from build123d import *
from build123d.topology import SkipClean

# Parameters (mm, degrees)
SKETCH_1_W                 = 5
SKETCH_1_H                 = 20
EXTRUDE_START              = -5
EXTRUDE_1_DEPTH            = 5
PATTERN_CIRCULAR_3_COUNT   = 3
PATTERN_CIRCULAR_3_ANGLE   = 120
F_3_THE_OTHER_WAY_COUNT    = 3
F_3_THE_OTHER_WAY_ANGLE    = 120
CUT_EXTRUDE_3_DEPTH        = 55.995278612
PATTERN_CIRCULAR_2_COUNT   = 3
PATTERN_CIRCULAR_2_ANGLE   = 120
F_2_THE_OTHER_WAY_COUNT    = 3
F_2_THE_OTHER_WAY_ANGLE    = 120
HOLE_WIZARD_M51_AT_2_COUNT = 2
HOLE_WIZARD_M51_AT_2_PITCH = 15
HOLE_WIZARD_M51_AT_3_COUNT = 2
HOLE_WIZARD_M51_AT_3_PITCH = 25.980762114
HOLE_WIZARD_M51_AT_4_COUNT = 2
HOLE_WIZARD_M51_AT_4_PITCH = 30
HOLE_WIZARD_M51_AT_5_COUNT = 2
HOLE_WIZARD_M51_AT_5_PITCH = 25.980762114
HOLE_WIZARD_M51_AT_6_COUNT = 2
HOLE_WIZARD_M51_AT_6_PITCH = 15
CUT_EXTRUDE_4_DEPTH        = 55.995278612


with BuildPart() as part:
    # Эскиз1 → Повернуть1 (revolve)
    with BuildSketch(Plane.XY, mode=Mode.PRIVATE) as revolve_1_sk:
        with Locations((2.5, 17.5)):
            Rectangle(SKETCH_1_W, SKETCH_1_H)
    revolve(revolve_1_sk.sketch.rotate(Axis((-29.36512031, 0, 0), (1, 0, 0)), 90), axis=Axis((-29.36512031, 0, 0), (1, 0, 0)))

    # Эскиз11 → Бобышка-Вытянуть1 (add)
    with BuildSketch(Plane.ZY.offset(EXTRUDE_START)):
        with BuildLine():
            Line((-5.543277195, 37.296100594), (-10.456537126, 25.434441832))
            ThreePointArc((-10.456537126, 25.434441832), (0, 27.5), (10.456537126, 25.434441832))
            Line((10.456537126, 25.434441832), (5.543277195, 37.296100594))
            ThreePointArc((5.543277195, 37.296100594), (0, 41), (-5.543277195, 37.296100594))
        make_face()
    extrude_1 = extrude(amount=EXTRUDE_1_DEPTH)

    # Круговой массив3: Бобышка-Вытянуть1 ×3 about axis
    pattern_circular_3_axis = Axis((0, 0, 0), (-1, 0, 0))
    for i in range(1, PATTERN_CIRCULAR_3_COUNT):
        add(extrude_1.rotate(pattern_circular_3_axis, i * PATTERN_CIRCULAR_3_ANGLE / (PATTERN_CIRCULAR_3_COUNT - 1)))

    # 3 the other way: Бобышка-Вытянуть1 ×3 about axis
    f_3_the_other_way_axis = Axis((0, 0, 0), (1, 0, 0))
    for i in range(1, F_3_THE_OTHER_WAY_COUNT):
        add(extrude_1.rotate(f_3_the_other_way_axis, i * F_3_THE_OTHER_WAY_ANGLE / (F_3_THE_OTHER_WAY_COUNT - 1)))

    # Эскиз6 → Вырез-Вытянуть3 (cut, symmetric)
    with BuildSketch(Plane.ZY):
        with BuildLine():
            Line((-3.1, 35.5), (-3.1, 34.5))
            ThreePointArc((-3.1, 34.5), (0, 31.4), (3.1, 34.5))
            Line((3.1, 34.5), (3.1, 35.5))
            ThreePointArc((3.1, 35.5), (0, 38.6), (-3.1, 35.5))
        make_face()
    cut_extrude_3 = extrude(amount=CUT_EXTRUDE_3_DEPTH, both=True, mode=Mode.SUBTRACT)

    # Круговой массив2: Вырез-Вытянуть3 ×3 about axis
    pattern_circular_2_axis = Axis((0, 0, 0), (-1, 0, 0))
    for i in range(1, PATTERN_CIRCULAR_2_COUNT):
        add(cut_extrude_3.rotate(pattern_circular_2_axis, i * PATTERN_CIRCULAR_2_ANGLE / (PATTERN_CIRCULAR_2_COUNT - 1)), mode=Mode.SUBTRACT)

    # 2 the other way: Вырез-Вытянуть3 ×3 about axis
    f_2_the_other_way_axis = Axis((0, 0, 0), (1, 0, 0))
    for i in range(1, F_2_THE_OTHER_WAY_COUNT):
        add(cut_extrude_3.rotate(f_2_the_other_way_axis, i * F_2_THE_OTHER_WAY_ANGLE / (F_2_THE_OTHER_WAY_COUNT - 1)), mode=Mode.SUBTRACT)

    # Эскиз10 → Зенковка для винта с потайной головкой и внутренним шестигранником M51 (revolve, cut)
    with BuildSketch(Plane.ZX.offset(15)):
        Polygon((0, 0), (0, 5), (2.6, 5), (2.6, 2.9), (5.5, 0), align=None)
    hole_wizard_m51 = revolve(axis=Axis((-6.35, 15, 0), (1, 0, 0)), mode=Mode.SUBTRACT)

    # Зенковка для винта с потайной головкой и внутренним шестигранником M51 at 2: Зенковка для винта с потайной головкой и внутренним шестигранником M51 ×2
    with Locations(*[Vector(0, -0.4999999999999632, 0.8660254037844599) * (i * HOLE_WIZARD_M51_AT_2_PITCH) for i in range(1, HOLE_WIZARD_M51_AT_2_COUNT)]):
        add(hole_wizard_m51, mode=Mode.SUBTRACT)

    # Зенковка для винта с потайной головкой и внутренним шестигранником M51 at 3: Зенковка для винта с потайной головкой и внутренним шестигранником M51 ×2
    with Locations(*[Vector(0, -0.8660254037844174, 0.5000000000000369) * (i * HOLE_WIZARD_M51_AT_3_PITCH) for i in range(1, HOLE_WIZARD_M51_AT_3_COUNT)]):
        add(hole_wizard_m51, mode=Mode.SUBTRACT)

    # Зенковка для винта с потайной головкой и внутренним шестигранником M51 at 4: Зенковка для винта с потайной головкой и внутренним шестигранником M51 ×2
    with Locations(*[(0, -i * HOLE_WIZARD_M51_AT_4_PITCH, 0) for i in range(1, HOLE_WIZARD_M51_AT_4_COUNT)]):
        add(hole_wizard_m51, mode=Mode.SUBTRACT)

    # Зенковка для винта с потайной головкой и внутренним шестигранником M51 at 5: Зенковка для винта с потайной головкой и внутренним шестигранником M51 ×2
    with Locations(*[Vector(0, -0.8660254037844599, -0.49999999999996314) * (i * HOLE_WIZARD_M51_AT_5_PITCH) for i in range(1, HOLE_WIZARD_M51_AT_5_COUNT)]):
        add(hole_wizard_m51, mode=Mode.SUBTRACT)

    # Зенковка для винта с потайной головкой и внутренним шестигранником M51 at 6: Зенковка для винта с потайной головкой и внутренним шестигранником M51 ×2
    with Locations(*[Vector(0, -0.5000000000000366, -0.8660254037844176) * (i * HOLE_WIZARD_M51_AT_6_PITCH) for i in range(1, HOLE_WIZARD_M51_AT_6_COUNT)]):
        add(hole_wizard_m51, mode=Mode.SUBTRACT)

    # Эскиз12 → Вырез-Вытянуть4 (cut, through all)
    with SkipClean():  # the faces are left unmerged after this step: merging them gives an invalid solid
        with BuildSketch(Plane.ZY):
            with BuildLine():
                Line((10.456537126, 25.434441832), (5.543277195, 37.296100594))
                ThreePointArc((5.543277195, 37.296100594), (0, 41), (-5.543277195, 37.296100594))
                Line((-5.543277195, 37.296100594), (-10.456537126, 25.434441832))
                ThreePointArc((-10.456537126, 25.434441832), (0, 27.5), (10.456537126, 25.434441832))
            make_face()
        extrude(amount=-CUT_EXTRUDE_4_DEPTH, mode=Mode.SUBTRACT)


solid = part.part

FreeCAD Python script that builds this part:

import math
import FreeCAD as App
import Part
import Sketcher

V = App.Vector
Q = App.Units.Quantity

doc = App.newDocument("Part")
params = doc.addObject("Spreadsheet::Sheet", "Params")
for row, (alias, value) in enumerate([
    ("sketch1_width", "5 mm"),
    ("sketch1_height", "20 mm"),
    ("revolution_angle", "360 deg"),
    ("sketch2_radius", "6 mm"),
    ("sketch2_radius2", "27.5 mm"),
    ("pad1_length", "5 mm"),
    ("sketch3_radius", "3.1 mm"),
    ("sketch3_width", "1 mm"),
    ("pocket1_length", "111.990557 mm"),
    ("sketch4_width", "5 mm"),
    ("sketch4_width2", "2.1 mm"),
    ("sketch4_height", "5.5 mm"),
    ("groove_angle", "360 deg"),
    ("linearpattern_pitch", "15 mm"),
    ("linearpattern2_pitch", "25.980762 mm"),
    ("linearpattern3_pitch", "30 mm"),
    ("linearpattern4_pitch", "25.980762 mm"),
    ("linearpattern5_pitch", "15 mm"),
    ("sketch5_radius", "6 mm"),
    ("sketch5_radius2", "27.5 mm"),
], start=1):
    params.set(f"A{row}", alias)
    params.set(f"B{row}", "=" + value)
    params.setAlias(f"B{row}", alias)

body = doc.addObject("PartDesign::Body", "Body")

sketch1 = body.newObject("Sketcher::SketchObject", "Sketch")
sketch1.AttachmentSupport = (doc.getObject("XY_Plane"), [""])
sketch1.MapMode = "FlatFace"
sketch1.addGeometry([
    Part.LineSegment(V(0, 27.5, 0), V(0, 7.5, 0)),
    Part.LineSegment(V(0, 7.5, 0), V(5, 7.5, 0)),
    Part.LineSegment(V(5, 7.5, 0), V(5, 27.5, 0)),
    Part.LineSegment(V(5, 27.5, 0), V(0, 27.5, 0)),
], False)
sketch1.addConstraint([
    Sketcher.Constraint("Coincident", 0, 2, 1, 1),
    Sketcher.Constraint("Coincident", 1, 2, 2, 1),
    Sketcher.Constraint("Coincident", 2, 2, 3, 1),
    Sketcher.Constraint("Coincident", 3, 2, 0, 1),
    Sketcher.Constraint("Vertical", 0),
    Sketcher.Constraint("Horizontal", 1),
    Sketcher.Constraint("Vertical", 2),
    Sketcher.Constraint("Horizontal", 3),
    Sketcher.Constraint("PointOnObject", 0, 2, -2),
    Sketcher.Constraint("DistanceX", 1, 1, 1, 2, 5.0),
    Sketcher.Constraint("DistanceY", 0, 2, 0, 1, 20.0),
    Sketcher.Constraint("DistanceY", -1, 1, 0, 2, 7.5),
])
sketch1.setExpression("Constraints[9]", "Params.sketch1_width")
sketch1.setExpression("Constraints[10]", "Params.sketch1_height")
revolution = body.newObject("PartDesign::Revolution", "Revolution")
revolution.Profile = sketch1
revolution.ReferenceAxis = (sketch1, ["H_Axis"])
revolution.setExpression("Angle", "Params.revolution_angle")

sketch2 = body.newObject("Sketcher::SketchObject", "Sketch001")
sketch2.AttachmentSupport = (doc.getObject("YZ_Plane"), [""])
sketch2.MapMode = "FlatFace"
sketch2.AttachmentOffset = App.Placement(V(0, 0, 5), App.Rotation())
sketch2.addGeometry([
    Part.LineSegment(V(37.296101, -5.543277, 0), V(25.434442, -10.456537, 0)),
    Part.ArcOfCircle(Part.Circle(V(0, 0, 0), V(0, 0, 1), 27.5), math.radians(-22.348408), math.radians(22.348408)),
    Part.LineSegment(V(25.434442, 10.456537, 0), V(37.296101, 5.543277, 0)),
    Part.ArcOfCircle(Part.Circle(V(35, 0, 0), V(0, 0, 1), 6), math.radians(-67.5), math.radians(67.5)),
], False)
sketch2.addConstraint([
    Sketcher.Constraint("Coincident", 0, 2, 1, 1),
    Sketcher.Constraint("Coincident", 1, 2, 2, 1),
    Sketcher.Constraint("Tangent", 2, 2, 3, 2),
    Sketcher.Constraint("Tangent", 3, 1, 0, 1),
    Sketcher.Constraint("Coincident", 1, 3, -1, 1),
    Sketcher.Constraint("Symmetric", 2, 2, 3, 1, -1),
    Sketcher.Constraint("Radius", 3, 6.0),
    Sketcher.Constraint("Radius", 1, 27.5),
    Sketcher.Constraint("DistanceX", -1, 1, 3, 3, 35.0),
    Sketcher.Constraint("Angle", 0, Q("-157.5 deg")),
])
sketch2.setExpression("Constraints[6]", "Params.sketch2_radius")
sketch2.setExpression("Constraints[7]", "Params.sketch2_radius2")
pad1 = body.newObject("PartDesign::Pad", "Pad")
pad1.Profile = sketch2
pad1.setExpression("Length", "Params.pad1_length")
pad1.Reversed = True
doc.recompute()

polarpattern = body.newObject("PartDesign::PolarPattern", "PolarPattern")
polarpattern.Originals = [pad1]
polarpattern.Axis = (doc.getObject("X_Axis"), [""])
polarpattern.Angle = 120
polarpattern.Occurrences = 3
polarpattern.Reversed = True
body.Tip = polarpattern
doc.recompute()

polarpattern2 = body.newObject("PartDesign::PolarPattern", "PolarPattern001")
polarpattern2.Originals = [pad1]
polarpattern2.Axis = (doc.getObject("X_Axis"), [""])
polarpattern2.Angle = 120
polarpattern2.Occurrences = 3
body.Tip = polarpattern2

sketch3 = body.newObject("Sketcher::SketchObject", "Sketch002")
sketch3.AttachmentSupport = (doc.getObject("YZ_Plane"), [""])
sketch3.MapMode = "FlatFace"
sketch3.addGeometry([
    Part.LineSegment(V(35.5, -3.1, 0), V(34.5, -3.1, 0)),
    Part.ArcOfCircle(Part.Circle(V(34.5, 0, 0), V(0, 0, 1), 3.1), math.radians(90), math.radians(270)),
    Part.LineSegment(V(34.5, 3.1, 0), V(35.5, 3.1, 0)),
    Part.ArcOfCircle(Part.Circle(V(35.5, 0, 0), V(0, 0, 1), 3.1), math.radians(-90), math.radians(90)),
], False)
sketch3.addConstraint([
    Sketcher.Constraint("Tangent", 0, 2, 1, 2),
    Sketcher.Constraint("Tangent", 1, 1, 2, 1),
    Sketcher.Constraint("Tangent", 2, 2, 3, 2),
    Sketcher.Constraint("Tangent", 3, 1, 0, 1),
    Sketcher.Constraint("Horizontal", 0),
    Sketcher.Constraint("Horizontal", 2),
    Sketcher.Constraint("PointOnObject", 1, 3, -1),
    Sketcher.Constraint("Radius", 1, 3.1),
    Sketcher.Constraint("DistanceX", 0, 2, 0, 1, 1.0),
    Sketcher.Constraint("DistanceX", -1, 1, 1, 3, 34.5),
])
sketch3.setExpression("Constraints[7]", "Params.sketch3_radius")
sketch3.setExpression("Constraints[8]", "Params.sketch3_width")
pocket1 = body.newObject("PartDesign::Pocket", "Pocket")
pocket1.Profile = sketch3
pocket1.setExpression("Length", "Params.pocket1_length")
pocket1.Midplane = True
doc.recompute()

polarpattern3 = body.newObject("PartDesign::PolarPattern", "PolarPattern002")
polarpattern3.Originals = [pocket1]
polarpattern3.Axis = (doc.getObject("X_Axis"), [""])
polarpattern3.Angle = 120
polarpattern3.Occurrences = 3
polarpattern3.Reversed = True
body.Tip = polarpattern3
doc.recompute()

polarpattern4 = body.newObject("PartDesign::PolarPattern", "PolarPattern003")
polarpattern4.Originals = [pocket1]
polarpattern4.Axis = (doc.getObject("X_Axis"), [""])
polarpattern4.Angle = 120
polarpattern4.Occurrences = 3
body.Tip = polarpattern4

sketch4 = body.newObject("Sketcher::SketchObject", "Sketch003")
sketch4.AttachmentSupport = (doc.getObject("XZ_Plane"), [""])
sketch4.MapMode = "FlatFace"
sketch4.AttachmentOffset = App.Placement(V(0, 0, -15), App.Rotation())
sketch4.addGeometry([
    Part.LineSegment(V(5, 0, 0), V(0, 0, 0)),
    Part.LineSegment(V(0, 0, 0), V(0, 5.5, 0)),
    Part.LineSegment(V(0, 5.5, 0), V(2.9, 2.6, 0)),
    Part.LineSegment(V(2.9, 2.6, 0), V(5, 2.6, 0)),
    Part.LineSegment(V(5, 2.6, 0), V(5, 0, 0)),
], False)
sketch4.addConstraint([
    Sketcher.Constraint("Coincident", 0, 2, 1, 1),
    Sketcher.Constraint("Coincident", 1, 2, 2, 1),
    Sketcher.Constraint("Coincident", 2, 2, 3, 1),
    Sketcher.Constraint("Coincident", 3, 2, 4, 1),
    Sketcher.Constraint("Coincident", 4, 2, 0, 1),
    Sketcher.Constraint("Horizontal", 0),
    Sketcher.Constraint("Vertical", 1),
    Sketcher.Constraint("Horizontal", 3),
    Sketcher.Constraint("Vertical", 4),
    Sketcher.Constraint("Coincident", 0, 2, -1, 1),
    Sketcher.Constraint("DistanceX", 0, 2, 0, 1, 5.0),
    Sketcher.Constraint("Angle", 2, Q("-45 deg")),
    Sketcher.Constraint("DistanceX", 3, 1, 3, 2, 2.1),
    Sketcher.Constraint("DistanceY", 1, 1, 1, 2, 5.5),
])
sketch4.setExpression("Constraints[10]", "Params.sketch4_width")
sketch4.setExpression("Constraints[12]", "Params.sketch4_width2")
sketch4.setExpression("Constraints[13]", "Params.sketch4_height")
groove = body.newObject("PartDesign::Groove", "Groove")
groove.Profile = sketch4
groove.ReferenceAxis = (sketch4, ["H_Axis"])
groove.setExpression("Angle", "Params.groove_angle")
doc.recompute()

datumline = body.newObject("PartDesign::Line", "DatumLine")
datumline.Placement = App.Placement(V(0, 0, 0), App.Rotation(V(0, 0, 1), V(0, -0.5, 0.866025404)))
linearpattern = body.newObject("PartDesign::LinearPattern", "LinearPattern")
linearpattern.Originals = [groove]
linearpattern.Direction = (datumline, [""])
linearpattern.Mode = "offset"
linearpattern.setExpression("Offset", "Params.linearpattern_pitch")
linearpattern.Occurrences = 2
body.Tip = linearpattern
doc.recompute()

datumline2 = body.newObject("PartDesign::Line", "DatumLine001")
datumline2.Placement = App.Placement(V(0, 0, 0), App.Rotation(V(0, 0, 1), V(0, -0.866025404, 0.5)))
linearpattern2 = body.newObject("PartDesign::LinearPattern", "LinearPattern001")
linearpattern2.Originals = [groove]
linearpattern2.Direction = (datumline2, [""])
linearpattern2.Mode = "offset"
linearpattern2.setExpression("Offset", "Params.linearpattern2_pitch")
linearpattern2.Occurrences = 2
body.Tip = linearpattern2
doc.recompute()

linearpattern3 = body.newObject("PartDesign::LinearPattern", "LinearPattern002")
linearpattern3.Originals = [groove]
linearpattern3.Direction = (doc.getObject("Y_Axis"), [""])
linearpattern3.Mode = "offset"
linearpattern3.setExpression("Offset", "Params.linearpattern3_pitch")
linearpattern3.Occurrences = 2
linearpattern3.Reversed = True
body.Tip = linearpattern3
doc.recompute()

datumline3 = body.newObject("PartDesign::Line", "DatumLine002")
datumline3.Placement = App.Placement(V(0, 0, 0), App.Rotation(V(0, 0, 1), V(0, -0.866025404, -0.5)))
linearpattern4 = body.newObject("PartDesign::LinearPattern", "LinearPattern003")
linearpattern4.Originals = [groove]
linearpattern4.Direction = (datumline3, [""])
linearpattern4.Mode = "offset"
linearpattern4.setExpression("Offset", "Params.linearpattern4_pitch")
linearpattern4.Occurrences = 2
body.Tip = linearpattern4
doc.recompute()

datumline4 = body.newObject("PartDesign::Line", "DatumLine003")
datumline4.Placement = App.Placement(V(0, 0, 0), App.Rotation(V(0, 0, 1), V(0, -0.5, -0.866025404)))
linearpattern5 = body.newObject("PartDesign::LinearPattern", "LinearPattern004")
linearpattern5.Originals = [groove]
linearpattern5.Direction = (datumline4, [""])
linearpattern5.Mode = "offset"
linearpattern5.setExpression("Offset", "Params.linearpattern5_pitch")
linearpattern5.Occurrences = 2
body.Tip = linearpattern5

sketch5 = body.newObject("Sketcher::SketchObject", "Sketch004")
sketch5.AttachmentSupport = (doc.getObject("YZ_Plane"), [""])
sketch5.MapMode = "FlatFace"
sketch5.addGeometry([
    Part.LineSegment(V(25.434442, 10.456537, 0), V(37.296101, 5.543277, 0)),
    Part.ArcOfCircle(Part.Circle(V(35, 0, 0), V(0, 0, 1), 6), math.radians(-67.5), math.radians(67.5)),
    Part.LineSegment(V(37.296101, -5.543277, 0), V(25.434442, -10.456537, 0)),
    Part.ArcOfCircle(Part.Circle(V(0, 0, 0), V(0, 0, 1), 27.5), math.radians(-22.348408), math.radians(22.348408)),
], False)
sketch5.addConstraint([
    Sketcher.Constraint("Tangent", 0, 2, 1, 2),
    Sketcher.Constraint("Tangent", 1, 1, 2, 1),
    Sketcher.Constraint("Coincident", 2, 2, 3, 1),
    Sketcher.Constraint("Coincident", 3, 2, 0, 1),
    Sketcher.Constraint("Coincident", 3, 3, -1, 1),
    Sketcher.Constraint("Symmetric", 0, 2, 1, 1, -1),
    Sketcher.Constraint("Radius", 1, 6.0),
    Sketcher.Constraint("Radius", 3, 27.5),
    Sketcher.Constraint("DistanceX", -1, 1, 1, 3, 35.0),
    Sketcher.Constraint("Angle", 0, Q("-22.5 deg")),
])
sketch5.setExpression("Constraints[6]", "Params.sketch5_radius")
sketch5.setExpression("Constraints[7]", "Params.sketch5_radius2")
pocket2 = body.newObject("PartDesign::Pocket", "Pocket001")
pocket2.Profile = sketch5
pocket2.Type = "ThroughAll"
pocket2.Reversed = True

doc.recompute()
